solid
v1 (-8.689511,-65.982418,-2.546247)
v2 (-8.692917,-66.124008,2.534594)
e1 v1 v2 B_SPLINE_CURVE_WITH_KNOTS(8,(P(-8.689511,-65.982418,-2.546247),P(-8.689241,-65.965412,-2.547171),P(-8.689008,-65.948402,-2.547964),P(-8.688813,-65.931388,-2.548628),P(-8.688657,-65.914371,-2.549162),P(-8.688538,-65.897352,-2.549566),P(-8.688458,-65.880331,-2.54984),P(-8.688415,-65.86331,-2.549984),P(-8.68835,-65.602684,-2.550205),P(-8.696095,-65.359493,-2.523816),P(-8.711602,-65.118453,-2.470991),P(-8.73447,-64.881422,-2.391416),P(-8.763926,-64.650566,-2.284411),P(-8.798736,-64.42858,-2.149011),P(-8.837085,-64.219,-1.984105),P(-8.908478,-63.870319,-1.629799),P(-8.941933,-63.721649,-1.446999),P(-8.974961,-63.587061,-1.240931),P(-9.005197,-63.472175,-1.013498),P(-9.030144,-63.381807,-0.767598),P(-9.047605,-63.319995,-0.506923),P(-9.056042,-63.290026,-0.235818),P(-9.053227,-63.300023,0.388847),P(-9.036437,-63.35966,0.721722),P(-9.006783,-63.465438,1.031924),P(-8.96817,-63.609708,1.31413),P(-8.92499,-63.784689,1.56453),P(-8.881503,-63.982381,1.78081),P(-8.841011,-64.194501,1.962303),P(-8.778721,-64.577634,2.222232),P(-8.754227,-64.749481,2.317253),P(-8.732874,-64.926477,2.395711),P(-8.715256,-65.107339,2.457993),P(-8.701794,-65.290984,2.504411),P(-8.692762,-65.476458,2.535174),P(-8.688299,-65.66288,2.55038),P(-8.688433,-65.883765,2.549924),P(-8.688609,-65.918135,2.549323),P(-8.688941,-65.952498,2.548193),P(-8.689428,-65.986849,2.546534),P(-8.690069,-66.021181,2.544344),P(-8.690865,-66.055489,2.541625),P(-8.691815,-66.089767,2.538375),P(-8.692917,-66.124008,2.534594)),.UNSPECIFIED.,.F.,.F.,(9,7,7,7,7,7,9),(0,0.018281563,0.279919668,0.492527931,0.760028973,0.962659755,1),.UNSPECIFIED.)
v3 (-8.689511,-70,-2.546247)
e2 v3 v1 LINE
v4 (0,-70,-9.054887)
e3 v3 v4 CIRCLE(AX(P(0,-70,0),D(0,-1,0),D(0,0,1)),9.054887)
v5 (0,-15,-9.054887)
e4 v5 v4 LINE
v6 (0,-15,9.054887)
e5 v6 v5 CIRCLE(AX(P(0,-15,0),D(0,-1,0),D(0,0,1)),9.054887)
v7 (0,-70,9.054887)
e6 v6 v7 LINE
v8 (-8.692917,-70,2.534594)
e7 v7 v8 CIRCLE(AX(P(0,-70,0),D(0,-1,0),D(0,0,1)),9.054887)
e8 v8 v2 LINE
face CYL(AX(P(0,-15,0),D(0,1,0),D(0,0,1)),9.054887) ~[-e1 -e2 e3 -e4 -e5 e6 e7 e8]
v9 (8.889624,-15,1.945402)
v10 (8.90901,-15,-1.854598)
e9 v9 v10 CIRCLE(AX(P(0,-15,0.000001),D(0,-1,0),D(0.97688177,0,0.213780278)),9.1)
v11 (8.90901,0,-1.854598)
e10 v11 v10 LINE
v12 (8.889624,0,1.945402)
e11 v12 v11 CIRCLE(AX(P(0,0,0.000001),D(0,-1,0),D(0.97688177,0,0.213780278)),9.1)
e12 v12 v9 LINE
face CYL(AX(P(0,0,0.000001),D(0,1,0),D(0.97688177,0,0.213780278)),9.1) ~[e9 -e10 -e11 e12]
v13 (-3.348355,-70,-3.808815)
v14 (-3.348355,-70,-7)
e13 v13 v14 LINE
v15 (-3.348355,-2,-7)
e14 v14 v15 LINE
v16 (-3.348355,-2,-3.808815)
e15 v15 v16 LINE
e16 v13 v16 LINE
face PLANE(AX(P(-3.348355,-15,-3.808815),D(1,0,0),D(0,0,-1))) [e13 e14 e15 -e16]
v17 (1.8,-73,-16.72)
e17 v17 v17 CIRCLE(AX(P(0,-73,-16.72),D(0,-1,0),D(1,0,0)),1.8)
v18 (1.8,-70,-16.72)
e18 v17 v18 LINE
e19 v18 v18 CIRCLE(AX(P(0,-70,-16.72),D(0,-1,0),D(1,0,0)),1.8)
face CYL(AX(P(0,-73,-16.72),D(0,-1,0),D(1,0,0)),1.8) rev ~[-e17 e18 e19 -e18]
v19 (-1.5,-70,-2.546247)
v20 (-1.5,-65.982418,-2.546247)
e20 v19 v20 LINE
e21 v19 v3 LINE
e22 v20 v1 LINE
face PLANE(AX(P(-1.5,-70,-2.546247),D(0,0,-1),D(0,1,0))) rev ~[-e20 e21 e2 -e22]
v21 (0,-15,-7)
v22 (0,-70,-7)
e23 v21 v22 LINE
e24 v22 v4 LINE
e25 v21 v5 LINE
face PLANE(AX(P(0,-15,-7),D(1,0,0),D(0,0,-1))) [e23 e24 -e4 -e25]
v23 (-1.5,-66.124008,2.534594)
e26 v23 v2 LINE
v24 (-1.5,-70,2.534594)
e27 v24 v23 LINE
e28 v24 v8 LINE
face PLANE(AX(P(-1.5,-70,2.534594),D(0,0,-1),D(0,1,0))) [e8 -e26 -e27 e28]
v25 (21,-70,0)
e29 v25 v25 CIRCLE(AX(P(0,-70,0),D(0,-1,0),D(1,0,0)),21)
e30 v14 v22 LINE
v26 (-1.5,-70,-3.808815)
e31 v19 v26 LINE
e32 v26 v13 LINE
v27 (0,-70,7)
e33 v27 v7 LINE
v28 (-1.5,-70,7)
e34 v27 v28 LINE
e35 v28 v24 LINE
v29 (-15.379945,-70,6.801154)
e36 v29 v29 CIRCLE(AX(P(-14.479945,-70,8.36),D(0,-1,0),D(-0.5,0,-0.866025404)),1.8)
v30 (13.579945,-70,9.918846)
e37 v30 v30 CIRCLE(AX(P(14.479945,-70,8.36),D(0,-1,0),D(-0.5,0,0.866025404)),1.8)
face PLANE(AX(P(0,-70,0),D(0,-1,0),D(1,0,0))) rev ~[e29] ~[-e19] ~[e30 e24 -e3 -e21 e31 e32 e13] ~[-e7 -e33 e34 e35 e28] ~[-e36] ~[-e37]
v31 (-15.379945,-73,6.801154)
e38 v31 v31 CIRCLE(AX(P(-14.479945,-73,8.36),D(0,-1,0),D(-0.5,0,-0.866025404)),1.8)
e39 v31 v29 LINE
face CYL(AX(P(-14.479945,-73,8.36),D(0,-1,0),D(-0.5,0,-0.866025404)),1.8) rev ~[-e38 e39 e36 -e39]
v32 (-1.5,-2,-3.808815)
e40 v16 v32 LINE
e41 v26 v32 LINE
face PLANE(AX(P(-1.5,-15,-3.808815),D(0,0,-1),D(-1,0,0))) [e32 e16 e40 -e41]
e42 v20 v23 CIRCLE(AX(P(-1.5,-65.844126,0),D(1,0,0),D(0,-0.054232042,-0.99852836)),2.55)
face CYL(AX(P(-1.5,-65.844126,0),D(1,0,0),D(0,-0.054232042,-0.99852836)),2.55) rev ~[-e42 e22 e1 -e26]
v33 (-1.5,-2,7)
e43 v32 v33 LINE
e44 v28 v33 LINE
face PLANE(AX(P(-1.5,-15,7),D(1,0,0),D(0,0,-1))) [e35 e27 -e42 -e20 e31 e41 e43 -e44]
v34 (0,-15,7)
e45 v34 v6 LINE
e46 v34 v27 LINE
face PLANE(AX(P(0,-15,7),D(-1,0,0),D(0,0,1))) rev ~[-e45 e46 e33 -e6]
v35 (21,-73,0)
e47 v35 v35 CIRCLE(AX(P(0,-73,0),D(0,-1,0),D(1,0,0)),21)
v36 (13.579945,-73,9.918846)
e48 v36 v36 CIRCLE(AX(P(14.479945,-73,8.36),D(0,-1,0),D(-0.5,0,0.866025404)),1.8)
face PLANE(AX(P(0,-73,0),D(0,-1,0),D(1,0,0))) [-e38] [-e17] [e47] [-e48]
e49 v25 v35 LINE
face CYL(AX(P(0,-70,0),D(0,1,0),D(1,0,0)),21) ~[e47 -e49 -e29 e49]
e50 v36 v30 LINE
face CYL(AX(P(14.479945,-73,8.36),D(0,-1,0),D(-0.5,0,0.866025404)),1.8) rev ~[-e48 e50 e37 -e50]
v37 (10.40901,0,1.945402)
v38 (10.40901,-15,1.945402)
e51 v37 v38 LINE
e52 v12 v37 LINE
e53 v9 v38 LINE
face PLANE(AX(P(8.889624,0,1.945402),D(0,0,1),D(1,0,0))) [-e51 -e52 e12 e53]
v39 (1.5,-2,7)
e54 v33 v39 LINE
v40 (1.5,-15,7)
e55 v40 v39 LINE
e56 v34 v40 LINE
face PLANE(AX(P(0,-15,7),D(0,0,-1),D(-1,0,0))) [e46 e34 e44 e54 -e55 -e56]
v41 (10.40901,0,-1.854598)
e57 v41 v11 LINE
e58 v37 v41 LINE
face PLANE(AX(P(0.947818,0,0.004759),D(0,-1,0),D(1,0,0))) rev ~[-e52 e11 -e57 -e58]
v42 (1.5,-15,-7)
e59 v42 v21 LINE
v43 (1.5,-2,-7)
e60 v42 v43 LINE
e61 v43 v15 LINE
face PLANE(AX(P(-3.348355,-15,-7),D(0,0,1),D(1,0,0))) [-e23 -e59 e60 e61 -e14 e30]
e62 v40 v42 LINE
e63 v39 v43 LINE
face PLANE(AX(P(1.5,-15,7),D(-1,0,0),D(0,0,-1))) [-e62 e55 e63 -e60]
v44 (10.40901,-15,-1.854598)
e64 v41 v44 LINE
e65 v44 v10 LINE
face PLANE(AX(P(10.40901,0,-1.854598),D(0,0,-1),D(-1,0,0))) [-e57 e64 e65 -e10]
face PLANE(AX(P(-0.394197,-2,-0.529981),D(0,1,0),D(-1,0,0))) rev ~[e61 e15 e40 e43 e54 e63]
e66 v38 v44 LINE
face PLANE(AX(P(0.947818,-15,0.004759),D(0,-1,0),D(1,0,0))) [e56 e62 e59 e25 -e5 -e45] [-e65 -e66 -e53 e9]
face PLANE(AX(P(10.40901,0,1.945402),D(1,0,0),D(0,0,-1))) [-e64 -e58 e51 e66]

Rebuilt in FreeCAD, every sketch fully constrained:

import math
import FreeCAD as App
import Part
import Sketcher
Q = App.Units.Quantity

doc = App.newDocument("Part")
params = doc.addObject("Spreadsheet::Sheet", "Params")
for row, (alias, value) in enumerate([
    ("sketch1_radius", "9.1 mm"),
    ("sketch1_width", "1.5 mm"),
    ("sketch1_height", "3.8 mm"),
    ("pad1_length", "15 mm"),
    ("sketch2_width", "3 mm"),
    ("sketch2_height", "14 mm"),
    ("pocket1_length", "13 mm"),
    ("sketch3_width", "1.5 mm"),
    ("pad2_length", "55 mm"),
    ("sketch4_radius", "2.55 mm"),
    ("sketch5_diameter", "42 mm"),
    ("pad3_length", "3 mm"),
    ("sketch6_diameter", "3.6 mm"),
], start=1):
    params.set(f"A{row}", alias)
    params.set(f"B{row}", "=" + value)
    params.setAlias(f"B{row}", alias)

body = doc.addObject("PartDesign::Body", "Body")

# Sketch on XZ plane
sketch1 = body.newObject("Sketcher::SketchObject", "Sketch")
sketch1.AttachmentSupport = (doc.getObject("XZ_Plane"), [""])
sketch1.MapMode = "FlatFace"
sketch1.addGeometry([
    Part.ArcOfCircle(Part.Circle(App.Vector(0, 0.000001, 0), App.Vector(0, 0, 1), 9.1), math.radians(12.343979), math.radians(348.240614)),
    Part.LineSegment(App.Vector(8.90901, -1.854598, 0), App.Vector(10.40901, -1.854598, 0)),
    Part.LineSegment(App.Vector(10.40901, -1.854598, 0), App.Vector(10.40901, 1.945402, 0)),
    Part.LineSegment(App.Vector(10.40901, 1.945402, 0), App.Vector(8.889624, 1.945402, 0)),
], False)
sketch1.addConstraint([
    Sketcher.Constraint("Coincident", 0, 2, 1, 1),
    Sketcher.Constraint("Coincident", 1, 2, 2, 1),
    Sketcher.Constraint("Coincident", 2, 2, 3, 1),
    Sketcher.Constraint("Coincident", 3, 2, 0, 1),
    Sketcher.Constraint("Horizontal", 1),
    Sketcher.Constraint("Vertical", 2),
    Sketcher.Constraint("Horizontal", 3),
    Sketcher.Constraint("Coincident", 0, 3, -1, 1),
    Sketcher.Constraint("Radius", 0, Q("9.1 mm")),
    Sketcher.Constraint("DistanceX", 1, 1, 1, 2, Q("1.5 mm")),
    Sketcher.Constraint("DistanceY", 2, 1, 2, 2, Q("3.8 mm")),
    Sketcher.Constraint("DistanceY", 0, 2, -1, 1, Q("1.854598 mm")),
])
sketch1.setExpression("Constraints[8]", "Params.sketch1_radius")
sketch1.setExpression("Constraints[9]", "Params.sketch1_width")
sketch1.setExpression("Constraints[10]", "Params.sketch1_height")
pad1 = body.newObject("PartDesign::Pad", "Pad")
pad1.Profile = sketch1
pad1.setExpression("Length", "Params.pad1_length")

# Sketch on XZ plane
sketch2 = body.newObject("Sketcher::SketchObject", "Sketch001")
sketch2.AttachmentSupport = (doc.getObject("XZ_Plane"), [""])
sketch2.MapMode = "FlatFace"
sketch2.AttachmentOffset = App.Placement(App.Vector(0, 0, 15), App.Rotation())
sketch2.addGeometry([
    Part.LineSegment(App.Vector(1.5, 7, 0), App.Vector(-1.5, 7, 0)),  # 0
    Part.LineSegment(App.Vector(-1.5, 7, 0), App.Vector(-1.5, -3.808815, 0)),  # 1
    Part.LineSegment(App.Vector(-1.5, -3.808815, 0), App.Vector(-3.348355, -3.808815, 0)),  # 2
    Part.LineSegment(App.Vector(-3.348355, -3.808815, 0), App.Vector(-3.348355, -7, 0)),  # 3
    Part.LineSegment(App.Vector(-3.348355, -7, 0), App.Vector(1.5, -7, 0)),  # 4
    Part.LineSegment(App.Vector(1.5, -7, 0), App.Vector(1.5, 7, 0)),  # 5
], False)
sketch2.addConstraint([
    Sketcher.Constraint("Coincident", 0, 2, 1, 1),
    Sketcher.Constraint("Coincident", 1, 2, 2, 1),
    Sketcher.Constraint("Coincident", 2, 2, 3, 1),
    Sketcher.Constraint("Coincident", 3, 2, 4, 1),
    Sketcher.Constraint("Coincident", 4, 2, 5, 1),
    Sketcher.Constraint("Coincident", 5, 2, 0, 1),
    Sketcher.Constraint("Horizontal", 0),
    Sketcher.Constraint("Vertical", 1),
    Sketcher.Constraint("Horizontal", 2),
    Sketcher.Constraint("Vertical", 3),
    Sketcher.Constraint("Horizontal", 4),
    Sketcher.Constraint("Vertical", 5),
    Sketcher.Constraint("Symmetric", 0, 2, 4, 2, -1, 1),
    Sketcher.Constraint("DistanceX", 0, 2, 0, 1, Q("3 mm")),
    Sketcher.Constraint("DistanceY", 5, 1, 5, 2, Q("14 mm")),
    Sketcher.Constraint("DistanceX", 2, 2, 2, 1, Q("1.848355 mm")),
    Sketcher.Constraint("DistanceY", 1, 2, 1, 1, Q("10.808815 mm")),
])
sketch2.setExpression("Constraints[13]", "Params.sketch2_width")
sketch2.setExpression("Constraints[14]", "Params.sketch2_height")
pocket1 = body.newObject("PartDesign::Pocket", "Pocket")
pocket1.Profile = sketch2
pocket1.setExpression("Length", "Params.pocket1_length")

# Sketch on XZ plane
sketch3 = body.newObject("Sketcher::SketchObject", "Sketch002")
sketch3.AttachmentSupport = (doc.getObject("XZ_Plane"), [""])
sketch3.MapMode = "FlatFace"
sketch3.AttachmentOffset = App.Placement(App.Vector(0, 0, 15), App.Rotation())
sketch3.addGeometry([
    Part.LineSegment(App.Vector(-1.5, 7, 0), App.Vector(0, 7, 0)),  # 0
    Part.LineSegment(App.Vector(0, 7, 0), App.Vector(0, 9.054887, 0)),  # 1
    Part.ArcOfCircle(Part.Circle(App.Vector(0, 0, 0), App.Vector(0, 0, 1), 9.054887), math.radians(90), math.radians(270)),  # 2
    Part.LineSegment(App.Vector(0, -9.054887, 0), App.Vector(0, -7, 0)),  # 3
    Part.LineSegment(App.Vector(0, -7, 0), App.Vector(-3.348355, -7, 0)),  # 4
    Part.LineSegment(App.Vector(-3.348355, -7, 0), App.Vector(-3.348355, -3.808815, 0)),  # 5
    Part.LineSegment(App.Vector(-3.348355, -3.808815, 0), App.Vector(-1.5, -3.808815, 0)),  # 6
    Part.LineSegment(App.Vector(-1.5, -3.808815, 0), App.Vector(-1.5, 7, 0)),  # 7
], False)
sketch3.addConstraint([
    Sketcher.Constraint("Coincident", 0, 2, 1, 1),
    Sketcher.Constraint("Coincident", 1, 2, 2, 1),
    Sketcher.Constraint("Coincident", 2, 2, 3, 1),
    Sketcher.Constraint("Coincident", 3, 2, 4, 1),
    Sketcher.Constraint("Coincident", 4, 2, 5, 1),
    Sketcher.Constraint("Coincident", 5, 2, 6, 1),
    Sketcher.Constraint("Coincident", 6, 2, 7, 1),
    Sketcher.Constraint("Coincident", 7, 2, 0, 1),
    Sketcher.Constraint("Horizontal", 0),
    Sketcher.Constraint("Vertical", 1),
    Sketcher.Constraint("Vertical", 3),
    Sketcher.Constraint("Horizontal", 4),
    Sketcher.Constraint("Vertical", 5),
    Sketcher.Constraint("Horizontal", 6),
    Sketcher.Constraint("Vertical", 7),
    Sketcher.Constraint("Coincident", 2, 3, -1, 1),
    Sketcher.Constraint("Symmetric", 0, 2, 3, 2, -1, 1),
    Sketcher.Constraint("PointOnObject", 0, 2, -2),
    Sketcher.Constraint("DistanceX", 0, 1, 0, 2, Q("1.5 mm")),
    Sketcher.Constraint("DistanceY", -1, 1, 0, 2, Q("7 mm")),
    Sketcher.Constraint("Radius", 2, Q("9.054887 mm")),
    Sketcher.Constraint("DistanceX", 4, 2, 4, 1, Q("3.348355 mm")),
    Sketcher.Constraint("DistanceY", 5, 1, 5, 2, Q("3.191185 mm")),
])
sketch3.setExpression("Constraints[18]", "Params.sketch3_width")
pad2 = body.newObject("PartDesign::Pad", "Pad001")
pad2.Profile = sketch3
pad2.setExpression("Length", "Params.pad2_length")

# Sketch on YZ plane
sketch4 = body.newObject("Sketcher::SketchObject", "Sketch003")
sketch4.AttachmentSupport = (doc.getObject("YZ_Plane"), [""])
sketch4.MapMode = "FlatFace"
sketch4.AttachmentOffset = App.Placement(App.Vector(0, 0, -1.5), App.Rotation())
sketch4.addGeometry([
    Part.LineSegment(App.Vector(-70, -2.546247, 0), App.Vector(-65.982418, -2.546247, 0)),
    Part.ArcOfCircle(Part.Circle(App.Vector(-65.844126, 0, 0), App.Vector(0, 0, 1), 2.55), math.radians(-93.108792), math.radians(96.301339)),
    Part.LineSegment(App.Vector(-66.124008, 2.534594, 0), App.Vector(-70, 2.534594, 0)),
    Part.LineSegment(App.Vector(-70, 2.534594, 0), App.Vector(-70, -2.546247, 0)),
], False)
sketch4.addConstraint([
    Sketcher.Constraint("Coincident", 0, 2, 1, 1),
    Sketcher.Constraint("Coincident", 1, 2, 2, 1),
    Sketcher.Constraint("Coincident", 2, 2, 3, 1),
    Sketcher.Constraint("Coincident", 3, 2, 0, 1),
    Sketcher.Constraint("Horizontal", 0),
    Sketcher.Constraint("Horizontal", 2),
    Sketcher.Constraint("Vertical", 3),
    Sketcher.Constraint("PointOnObject", 1, 3, -1),
    Sketcher.Constraint("Radius", 1, Q("2.55 mm")),
    Sketcher.Constraint("DistanceX", 2, 2, -1, 1, Q("70 mm")),
    Sketcher.Constraint("DistanceX", 2, 2, 2, 1, Q("3.875992 mm")),
    Sketcher.Constraint("DistanceY", 3, 2, 3, 1, Q("5.080841 mm")),
    Sketcher.Constraint("DistanceX", 0, 1, 0, 2, Q("4.017582 mm")),
])
sketch4.setExpression("Constraints[8]", "Params.sketch4_radius")
pocket2 = body.newObject("PartDesign::Pocket", "Pocket001")
pocket2.Profile = sketch4
pocket2.Type = "ThroughAll"

# Sketch on XZ plane
sketch5 = body.newObject("Sketcher::SketchObject", "Sketch004")
sketch5.AttachmentSupport = (doc.getObject("XZ_Plane"), [""])
sketch5.MapMode = "FlatFace"
sketch5.AttachmentOffset = App.Placement(App.Vector(0, 0, 70), App.Rotation())
sketch5.addGeometry(Part.Circle(App.Vector(0, 0, 0), App.Vector(0, 0, 1), 21), False)
sketch5.addConstraint([
    Sketcher.Constraint("Coincident", 0, 3, -1, 1),
    Sketcher.Constraint("Diameter", 0, Q("42 mm")),
])
sketch5.setExpression("Constraints[1]", "Params.sketch5_diameter")
pad3 = body.newObject("PartDesign::Pad", "Pad002")
pad3.Profile = sketch5
pad3.setExpression("Length", "Params.pad3_length")

# Sketch on XZ plane
sketch6 = body.newObject("Sketcher::SketchObject", "Sketch005")
sketch6.AttachmentSupport = (doc.getObject("XZ_Plane"), [""])
sketch6.MapMode = "FlatFace"
sketch6.AttachmentOffset = App.Placement(App.Vector(0, 0, 73), App.Rotation())
sketch6.addGeometry(Part.Circle(App.Vector(0, -16.72, 0), App.Vector(0, 0, 1), 1.8), False)
sketch6.addConstraint([
    Sketcher.Constraint("PointOnObject", 0, 3, -2),
    Sketcher.Constraint("Diameter", 0, Q("3.6 mm")),
    Sketcher.Constraint("DistanceY", 0, 3, -1, 1, Q("16.72 mm")),
])
sketch6.setExpression("Constraints[1]", "Params.sketch6_diameter")
pocket3 = body.newObject("PartDesign::Pocket", "Pocket002")
pocket3.Profile = sketch6
pocket3.Type = "ThroughAll"
doc.recompute()

polarpattern = body.newObject("PartDesign::PolarPattern", "PolarPattern")
polarpattern.Originals = [pocket3]
polarpattern.Axis = (doc.getObject("Y_Axis"), [""])
polarpattern.Angle = 360
polarpattern.Occurrences = 3
body.Tip = polarpattern

doc.recompute()
